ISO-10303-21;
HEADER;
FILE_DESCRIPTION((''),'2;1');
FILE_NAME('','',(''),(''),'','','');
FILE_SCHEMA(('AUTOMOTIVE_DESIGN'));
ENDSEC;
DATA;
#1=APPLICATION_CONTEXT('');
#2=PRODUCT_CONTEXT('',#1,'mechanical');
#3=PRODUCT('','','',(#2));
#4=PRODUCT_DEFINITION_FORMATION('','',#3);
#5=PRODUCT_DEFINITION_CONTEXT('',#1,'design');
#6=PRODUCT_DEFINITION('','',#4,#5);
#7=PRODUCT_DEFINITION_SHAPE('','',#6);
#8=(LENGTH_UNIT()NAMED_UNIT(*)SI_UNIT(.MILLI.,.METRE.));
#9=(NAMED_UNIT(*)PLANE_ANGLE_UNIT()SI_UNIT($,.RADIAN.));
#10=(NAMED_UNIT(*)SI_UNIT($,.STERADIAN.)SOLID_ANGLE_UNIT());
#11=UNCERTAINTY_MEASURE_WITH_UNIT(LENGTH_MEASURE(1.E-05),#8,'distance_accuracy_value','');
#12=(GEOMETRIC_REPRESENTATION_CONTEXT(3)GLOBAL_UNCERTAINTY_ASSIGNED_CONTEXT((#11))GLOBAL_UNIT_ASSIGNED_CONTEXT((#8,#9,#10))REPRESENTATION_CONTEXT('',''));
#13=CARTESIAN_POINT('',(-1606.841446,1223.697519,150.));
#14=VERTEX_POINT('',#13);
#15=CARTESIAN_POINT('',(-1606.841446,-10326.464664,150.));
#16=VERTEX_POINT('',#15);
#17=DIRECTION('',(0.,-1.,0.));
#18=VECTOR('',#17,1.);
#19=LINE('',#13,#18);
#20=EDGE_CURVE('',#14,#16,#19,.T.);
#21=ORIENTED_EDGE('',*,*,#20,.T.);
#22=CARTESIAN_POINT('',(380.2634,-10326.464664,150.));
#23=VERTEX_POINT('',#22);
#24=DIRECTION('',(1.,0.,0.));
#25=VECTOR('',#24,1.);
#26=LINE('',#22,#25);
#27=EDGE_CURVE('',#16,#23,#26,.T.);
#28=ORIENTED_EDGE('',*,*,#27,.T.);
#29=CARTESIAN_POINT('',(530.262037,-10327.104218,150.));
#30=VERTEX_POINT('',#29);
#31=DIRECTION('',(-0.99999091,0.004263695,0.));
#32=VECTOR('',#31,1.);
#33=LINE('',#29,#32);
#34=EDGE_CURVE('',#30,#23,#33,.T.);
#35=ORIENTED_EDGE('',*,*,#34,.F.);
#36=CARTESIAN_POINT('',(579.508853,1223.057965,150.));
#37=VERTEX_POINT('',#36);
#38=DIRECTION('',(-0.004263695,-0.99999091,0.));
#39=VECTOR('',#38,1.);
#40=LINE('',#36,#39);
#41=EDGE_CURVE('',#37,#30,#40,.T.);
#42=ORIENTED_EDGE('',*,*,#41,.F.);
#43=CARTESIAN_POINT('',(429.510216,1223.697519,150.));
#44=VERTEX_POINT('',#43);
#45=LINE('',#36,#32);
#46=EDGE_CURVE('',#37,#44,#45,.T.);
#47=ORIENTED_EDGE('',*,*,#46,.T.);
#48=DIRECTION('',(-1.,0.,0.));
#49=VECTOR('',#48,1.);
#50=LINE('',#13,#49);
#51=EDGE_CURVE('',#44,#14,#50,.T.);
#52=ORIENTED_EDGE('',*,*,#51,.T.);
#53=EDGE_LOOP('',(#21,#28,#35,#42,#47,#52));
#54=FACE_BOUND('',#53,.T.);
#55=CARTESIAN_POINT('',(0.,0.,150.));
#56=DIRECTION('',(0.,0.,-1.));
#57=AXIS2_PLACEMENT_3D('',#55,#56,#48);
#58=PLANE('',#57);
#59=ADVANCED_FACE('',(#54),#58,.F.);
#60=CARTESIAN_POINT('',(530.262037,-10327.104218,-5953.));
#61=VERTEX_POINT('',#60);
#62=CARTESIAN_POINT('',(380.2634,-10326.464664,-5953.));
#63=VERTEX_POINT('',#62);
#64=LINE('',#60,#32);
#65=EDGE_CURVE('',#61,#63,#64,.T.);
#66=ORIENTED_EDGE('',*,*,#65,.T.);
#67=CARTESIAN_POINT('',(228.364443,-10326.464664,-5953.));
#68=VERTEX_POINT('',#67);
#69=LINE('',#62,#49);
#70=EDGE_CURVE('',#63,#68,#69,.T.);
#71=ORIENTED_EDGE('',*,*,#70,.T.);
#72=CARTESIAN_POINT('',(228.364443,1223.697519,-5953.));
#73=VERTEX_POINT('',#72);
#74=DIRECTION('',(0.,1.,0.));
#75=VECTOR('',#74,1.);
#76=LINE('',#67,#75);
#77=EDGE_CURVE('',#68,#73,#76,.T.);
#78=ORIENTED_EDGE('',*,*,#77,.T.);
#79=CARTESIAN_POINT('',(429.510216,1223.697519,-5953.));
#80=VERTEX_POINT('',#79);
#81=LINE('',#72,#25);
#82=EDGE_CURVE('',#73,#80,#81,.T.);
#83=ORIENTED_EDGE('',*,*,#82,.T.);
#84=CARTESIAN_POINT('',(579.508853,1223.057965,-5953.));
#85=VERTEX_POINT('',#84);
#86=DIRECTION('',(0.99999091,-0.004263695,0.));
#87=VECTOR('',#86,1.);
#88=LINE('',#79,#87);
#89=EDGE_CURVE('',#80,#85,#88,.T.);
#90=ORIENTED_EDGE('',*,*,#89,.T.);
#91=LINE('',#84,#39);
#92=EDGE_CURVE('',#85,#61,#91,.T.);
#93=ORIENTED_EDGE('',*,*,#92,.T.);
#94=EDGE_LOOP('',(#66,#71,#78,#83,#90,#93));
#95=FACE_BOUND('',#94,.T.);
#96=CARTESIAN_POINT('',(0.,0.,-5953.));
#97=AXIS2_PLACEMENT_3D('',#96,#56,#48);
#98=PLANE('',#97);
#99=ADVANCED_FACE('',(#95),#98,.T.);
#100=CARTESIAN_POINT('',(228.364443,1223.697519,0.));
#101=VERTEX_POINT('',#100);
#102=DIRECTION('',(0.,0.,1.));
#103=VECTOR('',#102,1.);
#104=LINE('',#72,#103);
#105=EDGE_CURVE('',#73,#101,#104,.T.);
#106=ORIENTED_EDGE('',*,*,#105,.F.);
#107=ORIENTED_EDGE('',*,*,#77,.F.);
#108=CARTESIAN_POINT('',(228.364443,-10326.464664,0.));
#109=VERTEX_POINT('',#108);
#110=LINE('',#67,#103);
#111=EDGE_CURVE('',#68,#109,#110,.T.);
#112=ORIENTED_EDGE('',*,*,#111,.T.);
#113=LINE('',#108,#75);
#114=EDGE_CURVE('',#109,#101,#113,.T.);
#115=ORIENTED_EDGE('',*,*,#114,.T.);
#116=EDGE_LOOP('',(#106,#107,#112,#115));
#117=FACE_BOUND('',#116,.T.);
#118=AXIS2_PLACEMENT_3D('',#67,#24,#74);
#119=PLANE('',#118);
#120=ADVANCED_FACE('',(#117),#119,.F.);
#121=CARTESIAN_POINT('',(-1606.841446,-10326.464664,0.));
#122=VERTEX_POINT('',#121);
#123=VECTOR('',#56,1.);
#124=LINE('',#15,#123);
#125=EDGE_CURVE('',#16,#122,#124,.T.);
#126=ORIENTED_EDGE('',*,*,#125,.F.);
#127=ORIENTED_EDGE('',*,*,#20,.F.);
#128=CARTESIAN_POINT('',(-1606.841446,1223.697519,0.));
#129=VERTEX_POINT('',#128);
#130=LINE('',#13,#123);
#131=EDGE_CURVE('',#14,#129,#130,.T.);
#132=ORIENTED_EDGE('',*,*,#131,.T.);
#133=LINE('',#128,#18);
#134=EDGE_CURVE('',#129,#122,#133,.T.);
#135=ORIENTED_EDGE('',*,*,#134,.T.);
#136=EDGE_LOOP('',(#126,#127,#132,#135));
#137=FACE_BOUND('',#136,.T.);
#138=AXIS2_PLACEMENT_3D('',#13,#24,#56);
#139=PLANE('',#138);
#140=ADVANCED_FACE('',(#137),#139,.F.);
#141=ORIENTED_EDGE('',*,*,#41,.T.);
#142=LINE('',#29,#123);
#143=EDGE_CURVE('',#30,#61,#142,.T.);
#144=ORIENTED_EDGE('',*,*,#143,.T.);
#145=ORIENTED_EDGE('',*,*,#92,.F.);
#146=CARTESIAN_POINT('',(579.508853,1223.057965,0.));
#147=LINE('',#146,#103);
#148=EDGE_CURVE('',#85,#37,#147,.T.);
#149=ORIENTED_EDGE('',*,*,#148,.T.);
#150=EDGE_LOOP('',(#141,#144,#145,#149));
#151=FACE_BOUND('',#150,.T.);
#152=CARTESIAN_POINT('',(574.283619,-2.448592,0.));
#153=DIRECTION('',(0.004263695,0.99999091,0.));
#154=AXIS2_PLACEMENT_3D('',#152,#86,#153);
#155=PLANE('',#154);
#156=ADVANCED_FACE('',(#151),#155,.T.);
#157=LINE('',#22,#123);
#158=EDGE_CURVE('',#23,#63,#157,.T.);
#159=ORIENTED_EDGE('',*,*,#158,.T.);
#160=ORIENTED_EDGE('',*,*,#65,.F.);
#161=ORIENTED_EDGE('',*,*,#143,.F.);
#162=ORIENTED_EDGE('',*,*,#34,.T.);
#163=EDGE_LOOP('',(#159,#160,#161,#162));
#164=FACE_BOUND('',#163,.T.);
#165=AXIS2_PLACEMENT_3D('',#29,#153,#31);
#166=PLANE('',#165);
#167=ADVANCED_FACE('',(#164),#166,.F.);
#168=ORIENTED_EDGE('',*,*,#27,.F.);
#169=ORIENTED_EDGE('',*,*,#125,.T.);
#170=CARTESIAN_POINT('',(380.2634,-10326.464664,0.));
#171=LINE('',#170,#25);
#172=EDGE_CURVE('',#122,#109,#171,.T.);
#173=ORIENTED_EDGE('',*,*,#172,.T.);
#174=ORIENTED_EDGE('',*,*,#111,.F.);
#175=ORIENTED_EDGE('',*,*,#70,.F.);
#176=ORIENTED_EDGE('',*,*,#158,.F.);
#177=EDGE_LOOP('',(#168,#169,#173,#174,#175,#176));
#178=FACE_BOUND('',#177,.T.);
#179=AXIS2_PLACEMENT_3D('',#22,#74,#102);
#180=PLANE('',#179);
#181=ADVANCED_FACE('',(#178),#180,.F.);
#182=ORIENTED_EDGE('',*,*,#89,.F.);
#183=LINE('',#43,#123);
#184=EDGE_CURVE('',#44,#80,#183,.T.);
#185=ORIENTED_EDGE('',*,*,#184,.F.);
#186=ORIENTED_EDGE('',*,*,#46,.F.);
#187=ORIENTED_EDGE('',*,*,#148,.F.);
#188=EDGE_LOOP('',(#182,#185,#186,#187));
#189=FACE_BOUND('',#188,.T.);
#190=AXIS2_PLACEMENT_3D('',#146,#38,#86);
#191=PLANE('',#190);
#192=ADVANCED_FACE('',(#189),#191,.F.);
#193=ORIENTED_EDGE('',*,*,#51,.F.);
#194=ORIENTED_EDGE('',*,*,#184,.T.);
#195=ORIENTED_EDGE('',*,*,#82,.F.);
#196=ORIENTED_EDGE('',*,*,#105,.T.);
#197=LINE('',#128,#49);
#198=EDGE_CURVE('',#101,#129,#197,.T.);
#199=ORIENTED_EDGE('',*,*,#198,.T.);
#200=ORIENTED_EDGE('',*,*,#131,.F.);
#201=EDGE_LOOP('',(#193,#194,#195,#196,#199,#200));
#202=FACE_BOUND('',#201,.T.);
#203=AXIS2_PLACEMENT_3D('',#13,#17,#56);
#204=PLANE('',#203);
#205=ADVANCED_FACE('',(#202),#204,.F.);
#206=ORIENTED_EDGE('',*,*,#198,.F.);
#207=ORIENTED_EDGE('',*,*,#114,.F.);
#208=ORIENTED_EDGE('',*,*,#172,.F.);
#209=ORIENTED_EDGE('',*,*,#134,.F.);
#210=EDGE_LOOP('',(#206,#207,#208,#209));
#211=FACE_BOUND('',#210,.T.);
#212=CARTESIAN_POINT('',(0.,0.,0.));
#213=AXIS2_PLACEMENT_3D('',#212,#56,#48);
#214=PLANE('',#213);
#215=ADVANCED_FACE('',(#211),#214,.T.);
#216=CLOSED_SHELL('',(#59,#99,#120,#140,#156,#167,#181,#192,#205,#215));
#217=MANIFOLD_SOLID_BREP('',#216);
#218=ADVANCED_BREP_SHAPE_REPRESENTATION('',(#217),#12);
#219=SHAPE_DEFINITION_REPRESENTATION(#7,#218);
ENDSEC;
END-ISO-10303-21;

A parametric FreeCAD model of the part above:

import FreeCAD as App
import Part
import Sketcher
from FreeCAD import Vector
Q = App.Units.Quantity


def add_polygon(sketch, points):
    """Adds a closed chain of lines whose ends are joined by coincident constraints."""
    first, n = sketch.GeometryCount, len(points)
    for a, b in zip(points, points[1:] + points[:1]):
        sketch.addGeometry(Part.LineSegment(App.Vector(*a, 0), App.Vector(*b, 0)), False)
    for i in range(n):
        sketch.addConstraint(Sketcher.Constraint("Coincident", first + i, 2, first + (i + 1) % n, 1))

doc = App.newDocument("Part")
body = doc.addObject("PartDesign::Body", "Body")

sketch1 = body.newObject("Sketcher::SketchObject", "Sketch")
sketch1.AttachmentSupport = (doc.getObject("XY_Plane"), [""])
sketch1.MapMode = "FlatFace"
add_polygon(sketch1, [(430, 1224), (-1607, 1224), (-1607, -10326), (380, -10326)])
sketch1.addConstraint(Sketcher.Constraint("Horizontal", 0))
sketch1.addConstraint(Sketcher.Constraint("Vertical", 1))
sketch1.addConstraint(Sketcher.Constraint("Horizontal", 2))
sketch1.addConstraint(Sketcher.Constraint("DistanceX", -1, 1, 2, 2, Q("380.2634 mm")))
sketch1.addConstraint(Sketcher.Constraint("Distance", 3, Q("11550.267171 mm")))
sketch1.addConstraint(Sketcher.Constraint("DistanceX", 0, 2, 0, 1, Q("2036.351662 mm")))
sketch1.addConstraint(Sketcher.Constraint("DistanceX", 2, 1, 2, 2, Q("1987.104846 mm")))
sketch1.addConstraint(Sketcher.Constraint("DistanceY", -1, 1, 0, 2, Q("1223.697519 mm")))
pad1 = body.newObject("PartDesign::Pad", "Pad")
pad1.Profile = sketch1
pad1.Length = 150

sketch2 = body.newObject("Sketcher::SketchObject", "Sketch001")
sketch2.Placement = App.Placement(Vector(424.284982, -1.809038, 0), App.Rotation(Vector(0, 0, -1), Vector(0.004263695, 0.99999091, 0), Vector(0.99999091, -0.004263695, 0), "ZXY"))
add_polygon(sketch2, [(-150, 1226), (-150, -10325), (0, -10325), (0, 1226)])
sketch2.addConstraint(Sketcher.Constraint("Vertical", 0))
sketch2.addConstraint(Sketcher.Constraint("Horizontal", 1))
sketch2.addConstraint(Sketcher.Constraint("Vertical", 2))
sketch2.addConstraint(Sketcher.Constraint("Horizontal", 3))
sketch2.addConstraint(Sketcher.Constraint("PointOnObject", 1, 2, -2))
sketch2.addConstraint(Sketcher.Constraint("DistanceX", 1, 1, 1, 2, Q("150 mm")))
sketch2.addConstraint(Sketcher.Constraint("DistanceY", 0, 2, 0, 1, Q("11550.267161 mm")))
sketch2.addConstraint(Sketcher.Constraint("DistanceY", 0, 2, -1, 1, Q("10324.749465 mm")))
pad2 = body.newObject("PartDesign::Pad", "Pad001")
pad2.Profile = sketch2
pad2.Length = 150

sketch3 = body.newObject("Sketcher::SketchObject", "Sketch002")
sketch3.AttachmentSupport = (doc.getObject("XY_Plane"), [""])
sketch3.MapMode = "FlatFace"
add_polygon(sketch3, [(228, -10326), (228, 1224), (430, 1224), (580, 1223), (530, -10327), (380, -10326)])
sketch3.addConstraint(Sketcher.Constraint("Vertical", 0))
sketch3.addConstraint(Sketcher.Constraint("Horizontal", 1))
sketch3.addConstraint(Sketcher.Constraint("Horizontal", 5))
sketch3.addConstraint(Sketcher.Constraint("Perpendicular", 2, 3))
sketch3.addConstraint(Sketcher.Constraint("Perpendicular", 3, 4))
sketch3.addConstraint(Sketcher.Constraint("Equal", 2, 4))
sketch3.addConstraint(Sketcher.Constraint("Distance", 2, Q("150 mm")))
sketch3.addConstraint(Sketcher.Constraint("DistanceX", -1, 1, 4, 2, Q("380.2634 mm")))
sketch3.addConstraint(Sketcher.Constraint("Distance", 3, Q("11550.267171 mm")))
sketch3.addConstraint(Sketcher.Constraint("DistanceX", 1, 1, 1, 2, Q("201.145773 mm")))
sketch3.addConstraint(Sketcher.Constraint("DistanceX", 5, 2, 5, 1, Q("151.898957 mm")))
sketch3.addConstraint(Sketcher.Constraint("DistanceY", -1, 1, 0, 2, Q("1223.697519 mm")))
pad3 = body.newObject("PartDesign::Pad", "Pad002")
pad3.Profile = sketch3
pad3.Length = 5953
pad3.Reversed = True

doc.recompute()
